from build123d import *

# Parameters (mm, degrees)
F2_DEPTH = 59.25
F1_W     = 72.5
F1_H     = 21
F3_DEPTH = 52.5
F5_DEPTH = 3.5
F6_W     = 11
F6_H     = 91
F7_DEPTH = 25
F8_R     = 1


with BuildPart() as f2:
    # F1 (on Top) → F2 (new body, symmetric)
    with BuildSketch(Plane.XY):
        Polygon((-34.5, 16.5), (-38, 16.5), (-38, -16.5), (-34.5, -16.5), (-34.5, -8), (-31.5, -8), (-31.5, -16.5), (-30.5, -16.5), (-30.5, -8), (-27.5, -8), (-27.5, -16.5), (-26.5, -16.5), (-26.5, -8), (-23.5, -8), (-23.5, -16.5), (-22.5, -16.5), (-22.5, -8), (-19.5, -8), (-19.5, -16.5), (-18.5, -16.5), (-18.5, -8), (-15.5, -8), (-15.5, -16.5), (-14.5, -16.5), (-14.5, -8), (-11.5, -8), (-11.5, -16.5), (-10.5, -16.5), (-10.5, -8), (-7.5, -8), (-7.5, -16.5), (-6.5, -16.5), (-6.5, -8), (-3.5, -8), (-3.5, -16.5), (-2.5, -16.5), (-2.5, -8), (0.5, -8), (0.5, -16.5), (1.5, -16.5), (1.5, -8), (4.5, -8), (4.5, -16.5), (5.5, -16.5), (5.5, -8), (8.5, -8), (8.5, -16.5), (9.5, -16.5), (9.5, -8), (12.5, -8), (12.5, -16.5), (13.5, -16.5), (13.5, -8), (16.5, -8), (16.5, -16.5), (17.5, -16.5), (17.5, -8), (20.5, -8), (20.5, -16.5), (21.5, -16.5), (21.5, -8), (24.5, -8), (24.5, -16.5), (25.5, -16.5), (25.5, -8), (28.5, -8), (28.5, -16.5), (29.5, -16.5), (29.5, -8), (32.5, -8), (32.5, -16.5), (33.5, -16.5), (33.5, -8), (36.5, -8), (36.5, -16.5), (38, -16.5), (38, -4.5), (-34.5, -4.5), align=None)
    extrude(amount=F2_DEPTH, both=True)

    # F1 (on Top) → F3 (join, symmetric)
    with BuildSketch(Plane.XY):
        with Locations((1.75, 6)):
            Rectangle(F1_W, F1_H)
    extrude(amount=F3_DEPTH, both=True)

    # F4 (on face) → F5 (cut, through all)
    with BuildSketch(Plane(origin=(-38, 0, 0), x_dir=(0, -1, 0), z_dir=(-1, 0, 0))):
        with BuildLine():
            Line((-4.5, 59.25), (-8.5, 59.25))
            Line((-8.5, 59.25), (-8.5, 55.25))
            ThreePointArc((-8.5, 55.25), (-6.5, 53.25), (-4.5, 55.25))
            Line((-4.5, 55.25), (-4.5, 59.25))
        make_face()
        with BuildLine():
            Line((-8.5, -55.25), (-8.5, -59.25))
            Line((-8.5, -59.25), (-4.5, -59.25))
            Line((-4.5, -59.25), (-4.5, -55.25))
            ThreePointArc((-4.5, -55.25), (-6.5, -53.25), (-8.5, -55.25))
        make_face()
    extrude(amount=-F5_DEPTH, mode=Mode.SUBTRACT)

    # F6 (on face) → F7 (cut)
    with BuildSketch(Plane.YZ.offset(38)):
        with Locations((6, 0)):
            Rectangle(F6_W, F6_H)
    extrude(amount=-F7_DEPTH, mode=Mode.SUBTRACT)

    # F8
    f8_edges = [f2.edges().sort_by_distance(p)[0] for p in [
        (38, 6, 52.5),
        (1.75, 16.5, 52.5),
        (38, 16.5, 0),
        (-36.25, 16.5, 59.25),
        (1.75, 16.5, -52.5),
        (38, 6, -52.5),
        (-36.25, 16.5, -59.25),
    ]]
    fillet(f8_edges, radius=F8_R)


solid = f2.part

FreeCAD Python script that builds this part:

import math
import FreeCAD as App
import Part
import Sketcher
from FreeCAD import Vector


def edges_at(feature, points):
    """Names of the edges that pass closest to the given points."""
    edges = feature.Shape.Edges
    near = lambda p: min(range(len(edges)), key=lambda i: edges[i].distToShape(Part.Vertex(*p))[0])
    return sorted({f"Edge{near(p) + 1}" for p in points})


def add_polygon(sketch, points):
    """Adds a closed chain of lines whose ends are joined by coincident constraints."""
    first, n = sketch.GeometryCount, len(points)
    for a, b in zip(points, points[1:] + points[:1]):
        sketch.addGeometry(Part.LineSegment(App.Vector(*a, 0), App.Vector(*b, 0)), False)
    for i in range(n):
        sketch.addConstraint(Sketcher.Constraint("Coincident", first + i, 2, first + (i + 1) % n, 1))

doc = App.newDocument("Part")
body = doc.addObject("PartDesign::Body", "Body")

sketch1 = body.newObject("Sketcher::SketchObject", "Sketch")
sketch1.AttachmentSupport = (doc.getObject("XY_Plane"), [""])
sketch1.MapMode = "FlatFace"
add_polygon(sketch1, [(-34.5, 16.5), (-38, 16.5), (-38, -16.5), (-34.5, -16.5), (-34.5, -8), (-31.5, -8), (-31.5, -16.5), (-30.5, -16.5), (-30.5, -8), (-27.5, -8), (-27.5, -16.5), (-26.5, -16.5), (-26.5, -8), (-23.5, -8), (-23.5, -16.5), (-22.5, -16.5), (-22.5, -8), (-19.5, -8), (-19.5, -16.5), (-18.5, -16.5), (-18.5, -8), (-15.5, -8), (-15.5, -16.5), (-14.5, -16.5), (-14.5, -8), (-11.5, -8), (-11.5, -16.5), (-10.5, -16.5), (-10.5, -8), (-7.5, -8), (-7.5, -16.5), (-6.5, -16.5), (-6.5, -8), (-3.5, -8), (-3.5, -16.5), (-2.5, -16.5), (-2.5, -8), (0.5, -8), (0.5, -16.5), (1.5, -16.5), (1.5, -8), (4.5, -8), (4.5, -16.5), (5.5, -16.5), (5.5, -8), (8.5, -8), (8.5, -16.5), (9.5, -16.5), (9.5, -8), (12.5, -8), (12.5, -16.5), (13.5, -16.5), (13.5, -8), (16.5, -8), (16.5, -16.5), (17.5, -16.5), (17.5, -8), (20.5, -8), (20.5, -16.5), (21.5, -16.5), (21.5, -8), (24.5, -8), (24.5, -16.5), (25.5, -16.5), (25.5, -8), (28.5, -8), (28.5, -16.5), (29.5, -16.5), (29.5, -8), (32.5, -8), (32.5, -16.5), (33.5, -16.5), (33.5, -8), (36.5, -8), (36.5, -16.5), (38, -16.5), (38, -4.5), (-34.5, -4.5)])
sketch1.addConstraint([
    Sketcher.Constraint("Horizontal", 0),
    Sketcher.Constraint("Vertical", 1),
    Sketcher.Constraint("Horizontal", 2),
    Sketcher.Constraint("Vertical", 3),
    Sketcher.Constraint("Horizontal", 4),
    Sketcher.Constraint("Vertical", 5),
    Sketcher.Constraint("Horizontal", 6),
    Sketcher.Constraint("Vertical", 7),
    Sketcher.Constraint("Horizontal", 8),
    Sketcher.Constraint("Vertical", 9),
    Sketcher.Constraint("Horizontal", 10),
    Sketcher.Constraint("Vertical", 11),
    Sketcher.Constraint("Horizontal", 12),
    Sketcher.Constraint("Vertical", 13),
    Sketcher.Constraint("Horizontal", 14),
    Sketcher.Constraint("Vertical", 15),
    Sketcher.Constraint("Horizontal", 16),
    Sketcher.Constraint("Vertical", 17),
    Sketcher.Constraint("Horizontal", 18),
    Sketcher.Constraint("Vertical", 19),
    Sketcher.Constraint("Horizontal", 20),
    Sketcher.Constraint("Vertical", 21),
    Sketcher.Constraint("Horizontal", 22),
    Sketcher.Constraint("Vertical", 23),
    Sketcher.Constraint("Horizontal", 24),
    Sketcher.Constraint("Vertical", 25),
    Sketcher.Constraint("Horizontal", 26),
    Sketcher.Constraint("Vertical", 27),
    Sketcher.Constraint("Horizontal", 28),
    Sketcher.Constraint("Vertical", 29),
    Sketcher.Constraint("Horizontal", 30),
    Sketcher.Constraint("Vertical", 31),
    Sketcher.Constraint("Horizontal", 32),
    Sketcher.Constraint("Vertical", 33),
    Sketcher.Constraint("Horizontal", 34),
    Sketcher.Constraint("Vertical", 35),
    Sketcher.Constraint("Horizontal", 36),
    Sketcher.Constraint("Vertical", 37),
    Sketcher.Constraint("Horizontal", 38),
    Sketcher.Constraint("Vertical", 39),
    Sketcher.Constraint("Horizontal", 40),
    Sketcher.Constraint("Vertical", 41),
    Sketcher.Constraint("Horizontal", 42),
    Sketcher.Constraint("Vertical", 43),
    Sketcher.Constraint("Horizontal", 44),
    Sketcher.Constraint("Vertical", 45),
    Sketcher.Constraint("Horizontal", 46),
    Sketcher.Constraint("Vertical", 47),
    Sketcher.Constraint("Horizontal", 48),
    Sketcher.Constraint("Vertical", 49),
    Sketcher.Constraint("Horizontal", 50),
    Sketcher.Constraint("Vertical", 51),
    Sketcher.Constraint("Horizontal", 52),
    Sketcher.Constraint("Vertical", 53),
    Sketcher.Constraint("Horizontal", 54),
    Sketcher.Constraint("Vertical", 55),
    Sketcher.Constraint("Horizontal", 56),
    Sketcher.Constraint("Vertical", 57),
    Sketcher.Constraint("Horizontal", 58),
    Sketcher.Constraint("Vertical", 59),
    Sketcher.Constraint("Horizontal", 60),
    Sketcher.Constraint("Vertical", 61),
    Sketcher.Constraint("Horizontal", 62),
    Sketcher.Constraint("Vertical", 63),
    Sketcher.Constraint("Horizontal", 64),
    Sketcher.Constraint("Vertical", 65),
    Sketcher.Constraint("Horizontal", 66),
    Sketcher.Constraint("Vertical", 67),
    Sketcher.Constraint("Horizontal", 68),
    Sketcher.Constraint("Vertical", 69),
    Sketcher.Constraint("Horizontal", 70),
    Sketcher.Constraint("Vertical", 71),
    Sketcher.Constraint("Horizontal", 72),
    Sketcher.Constraint("Vertical", 73),
    Sketcher.Constraint("Horizontal", 74),
    Sketcher.Constraint("Vertical", 75),
    Sketcher.Constraint("Horizontal", 76),
    Sketcher.Constraint("Vertical", 77),
    Sketcher.Constraint("Symmetric", 0, 2, 74, 2, -1, 1),
    Sketcher.Constraint("Symmetric", 2, 2, 77, 2, -1),
    Sketcher.Constraint("Horizontal", 2, 2, 5, 2),
    Sketcher.Constraint("Horizontal", 4, 2, 7, 2),
    Sketcher.Constraint("Horizontal", 6, 2, 9, 2),
    Sketcher.Constraint("Horizontal", 8, 2, 11, 2),
    Sketcher.Constraint("Horizontal", 10, 2, 13, 2),
    Sketcher.Constraint("Horizontal", 12, 2, 15, 2),
    Sketcher.Constraint("Horizontal", 14, 2, 17, 2),
    Sketcher.Constraint("Horizontal", 16, 2, 19, 2),
    Sketcher.Constraint("Horizontal", 18, 2, 21, 2),
    Sketcher.Constraint("Horizontal", 20, 2, 23, 2),
    Sketcher.Constraint("Horizontal", 22, 2, 25, 2),
    Sketcher.Constraint("Horizontal", 24, 2, 27, 2),
    Sketcher.Constraint("Horizontal", 26, 2, 29, 2),
    Sketcher.Constraint("Horizontal", 28, 2, 31, 2),
    Sketcher.Constraint("Horizontal", 30, 2, 33, 2),
    Sketcher.Constraint("Horizontal", 32, 2, 35, 2),
    Sketcher.Constraint("Horizontal", 34, 2, 37, 2),
    Sketcher.Constraint("Horizontal", 36, 2, 39, 2),
    Sketcher.Constraint("Horizontal", 38, 2, 41, 2),
    Sketcher.Constraint("Horizontal", 40, 2, 43, 2),
    Sketcher.Constraint("Horizontal", 42, 2, 45, 2),
    Sketcher.Constraint("Horizontal", 44, 2, 47, 2),
    Sketcher.Constraint("Horizontal", 46, 2, 49, 2),
    Sketcher.Constraint("Horizontal", 48, 2, 51, 2),
    Sketcher.Constraint("Horizontal", 50, 2, 53, 2),
    Sketcher.Constraint("Horizontal", 52, 2, 55, 2),
    Sketcher.Constraint("Horizontal", 54, 2, 57, 2),
    Sketcher.Constraint("Horizontal", 56, 2, 59, 2),
    Sketcher.Constraint("Horizontal", 58, 2, 61, 2),
    Sketcher.Constraint("Horizontal", 60, 2, 63, 2),
    Sketcher.Constraint("Horizontal", 62, 2, 65, 2),
    Sketcher.Constraint("Horizontal", 64, 2, 67, 2),
    Sketcher.Constraint("Horizontal", 66, 2, 69, 2),
    Sketcher.Constraint("Horizontal", 68, 2, 71, 2),
    Sketcher.Constraint("Equal", 4, 8),
    Sketcher.Constraint("Equal", 6, 10),
    Sketcher.Constraint("Equal", 8, 12),
    Sketcher.Constraint("Equal", 10, 14),
    Sketcher.Constraint("Equal", 12, 16),
    Sketcher.Constraint("Equal", 14, 18),
    Sketcher.Constraint("Equal", 16, 20),
    Sketcher.Constraint("Equal", 18, 22),
    Sketcher.Constraint("Equal", 20, 24),
    Sketcher.Constraint("Equal", 22, 26),
    Sketcher.Constraint("Equal", 24, 28),
    Sketcher.Constraint("Equal", 26, 30),
    Sketcher.Constraint("Equal", 28, 32),
    Sketcher.Constraint("Equal", 30, 34),
    Sketcher.Constraint("Equal", 32, 36),
    Sketcher.Constraint("Equal", 34, 38),
    Sketcher.Constraint("Equal", 36, 40),
    Sketcher.Constraint("Equal", 38, 42),
    Sketcher.Constraint("Equal", 40, 44),
    Sketcher.Constraint("Equal", 42, 46),
    Sketcher.Constraint("Equal", 44, 48),
    Sketcher.Constraint("Equal", 46, 50),
    Sketcher.Constraint("Equal", 48, 52),
    Sketcher.Constraint("Equal", 50, 54),
    Sketcher.Constraint("Equal", 52, 56),
    Sketcher.Constraint("Equal", 54, 58),
    Sketcher.Constraint("Equal", 56, 60),
    Sketcher.Constraint("Equal", 58, 62),
    Sketcher.Constraint("Equal", 60, 64),
    Sketcher.Constraint("Equal", 62, 66),
    Sketcher.Constraint("Equal", 64, 68),
    Sketcher.Constraint("Equal", 66, 70),
    Sketcher.Constraint("Equal", 68, 72),
    Sketcher.Constraint("DistanceX", 4, 1, 4, 2, 3.0),
    Sketcher.Constraint("DistanceX", 6, 1, 6, 2, 1.0),
    Sketcher.Constraint("DistanceY", 1, 2, 1, 1, 33.0),
    Sketcher.Constraint("DistanceY", 75, 1, 75, 2, 12.0),
    Sketcher.Constraint("DistanceX", 0, 2, 0, 1, 3.5),
    Sketcher.Constraint("DistanceX", 74, 1, 74, 2, 1.5),
    Sketcher.Constraint("DistanceY", 3, 1, 3, 2, 8.5),
])
pad1 = body.newObject("PartDesign::Pad", "Pad")
pad1.Profile = sketch1
pad1.Length = 118.5
pad1.Midplane = True

sketch2 = body.newObject("Sketcher::SketchObject", "Sketch001")
sketch2.AttachmentSupport = (doc.getObject("XY_Plane"), [""])
sketch2.MapMode = "FlatFace"
add_polygon(sketch2, [(-34, 16), (-34, -4), (38, -4), (38, 16)])
sketch2.addConstraint([
    Sketcher.Constraint("Vertical", 0),
    Sketcher.Constraint("Horizontal", 1),
    Sketcher.Constraint("Vertical", 2),
    Sketcher.Constraint("Horizontal", 3),
    Sketcher.Constraint("DistanceY", 0, 2, 0, 1, 21.0),
    Sketcher.Constraint("DistanceX", 1, 1, 1, 2, 72.5),
    Sketcher.Constraint("DistanceX", -1, 1, 1, 2, 38.0),
    Sketcher.Constraint("DistanceY", 0, 2, -1, 1, 4.5),
])
pad2 = body.newObject("PartDesign::Pad", "Pad001")
pad2.Profile = sketch2
pad2.Length = 105
pad2.Midplane = True

sketch3 = body.newObject("Sketcher::SketchObject", "Sketch002")
sketch3.AttachmentSupport = (doc.getObject("YZ_Plane"), [""])
sketch3.MapMode = "FlatFace"
sketch3.AttachmentOffset = App.Placement(Vector(0, 0, -38), App.Rotation())
sketch3.addGeometry([
    Part.LineSegment(Vector(4.5, 59.2, 0), Vector(8.5, 59.2, 0)),
    Part.LineSegment(Vector(8.5, 59.2, 0), Vector(8.5, 55.2, 0)),
    Part.ArcOfCircle(Part.Circle(Vector(6.5, 55.2, 0), Vector(0, 0, 1), 2), math.radians(180), math.radians(360)),
    Part.LineSegment(Vector(4.5, 55.2, 0), Vector(4.5, 59.2, 0)),
    Part.LineSegment(Vector(8.5, -55.2, 0), Vector(8.5, -59.2, 0)),
    Part.LineSegment(Vector(8.5, -59.2, 0), Vector(4.5, -59.2, 0)),
    Part.LineSegment(Vector(4.5, -59.2, 0), Vector(4.5, -55.2, 0)),
    Part.ArcOfCircle(Part.Circle(Vector(6.5, -55.2, 0), Vector(0, 0, 1), 2), math.radians(0), math.radians(180)),
], False)
sketch3.addConstraint([
    Sketcher.Constraint("Coincident", 0, 2, 1, 1),
    Sketcher.Constraint("Tangent", 1, 2, 2, 2),
    Sketcher.Constraint("Tangent", 2, 1, 3, 1),
    Sketcher.Constraint("Coincident", 3, 2, 0, 1),
    Sketcher.Constraint("Coincident", 4, 2, 5, 1),
    Sketcher.Constraint("Coincident", 5, 2, 6, 1),
    Sketcher.Constraint("Tangent", 6, 2, 7, 2),
    Sketcher.Constraint("Tangent", 7, 1, 4, 1),
    Sketcher.Constraint("Horizontal", 0),
    Sketcher.Constraint("Vertical", 1),
    Sketcher.Constraint("Vertical", 3),
    Sketcher.Constraint("Vertical", 4),
    Sketcher.Constraint("Horizontal", 5),
    Sketcher.Constraint("Vertical", 6),
    Sketcher.Constraint("Equal", 2, 7),
    Sketcher.Constraint("Symmetric", 2, 3, 7, 3, -1),
    Sketcher.Constraint("Equal", 5, 1),
    Sketcher.Constraint("Equal", 3, 4),
    Sketcher.Constraint("Radius", 2, 2.0),
    Sketcher.Constraint("DistanceX", -1, 1, 2, 3, 6.5),
    Sketcher.Constraint("DistanceY", 7, 3, 2, 3, 110.5),
])
pocket1 = body.newObject("PartDesign::Pocket", "Pocket")
pocket1.Profile = sketch3
pocket1.Type = "ThroughAll"
pocket1.Reversed = True

sketch4 = body.newObject("Sketcher::SketchObject", "Sketch003")
sketch4.AttachmentSupport = (doc.getObject("YZ_Plane"), [""])
sketch4.MapMode = "FlatFace"
sketch4.AttachmentOffset = App.Placement(Vector(0, 0, 38), App.Rotation())
add_polygon(sketch4, [(0, 46), (0, -46), (12, -46), (12, 46)])
sketch4.addConstraint([
    Sketcher.Constraint("Vertical", 0),
    Sketcher.Constraint("Horizontal", 1),
    Sketcher.Constraint("Vertical", 2),
    Sketcher.Constraint("Horizontal", 3),
    Sketcher.Constraint("DistanceX", 1, 1, 1, 2, 11.0),
    Sketcher.Constraint("DistanceY", 0, 2, 0, 1, 91.0),
    Sketcher.Constraint("DistanceX", -1, 1, 0, 2, 0.5),
    Sketcher.Constraint("DistanceY", 0, 2, -1, 1, 45.5),
])
pocket2 = body.newObject("PartDesign::Pocket", "Pocket001")
pocket2.Profile = sketch4
pocket2.Length = 25
doc.recompute()

fillet = body.newObject("PartDesign::Fillet", "Fillet")
fillet.Base = (pocket2, edges_at(pocket2, [
    (38, 6, 52.5),
    (1.75, 16.5, 52.5),
    (38, 16.5, 0),
    (-36.25, 16.5, 59.25),
    (1.75, 16.5, -52.5),
    (38, 6, -52.5),
    (-36.25, 16.5, -59.25),
]))
fillet.Radius = 1

doc.recompute()
